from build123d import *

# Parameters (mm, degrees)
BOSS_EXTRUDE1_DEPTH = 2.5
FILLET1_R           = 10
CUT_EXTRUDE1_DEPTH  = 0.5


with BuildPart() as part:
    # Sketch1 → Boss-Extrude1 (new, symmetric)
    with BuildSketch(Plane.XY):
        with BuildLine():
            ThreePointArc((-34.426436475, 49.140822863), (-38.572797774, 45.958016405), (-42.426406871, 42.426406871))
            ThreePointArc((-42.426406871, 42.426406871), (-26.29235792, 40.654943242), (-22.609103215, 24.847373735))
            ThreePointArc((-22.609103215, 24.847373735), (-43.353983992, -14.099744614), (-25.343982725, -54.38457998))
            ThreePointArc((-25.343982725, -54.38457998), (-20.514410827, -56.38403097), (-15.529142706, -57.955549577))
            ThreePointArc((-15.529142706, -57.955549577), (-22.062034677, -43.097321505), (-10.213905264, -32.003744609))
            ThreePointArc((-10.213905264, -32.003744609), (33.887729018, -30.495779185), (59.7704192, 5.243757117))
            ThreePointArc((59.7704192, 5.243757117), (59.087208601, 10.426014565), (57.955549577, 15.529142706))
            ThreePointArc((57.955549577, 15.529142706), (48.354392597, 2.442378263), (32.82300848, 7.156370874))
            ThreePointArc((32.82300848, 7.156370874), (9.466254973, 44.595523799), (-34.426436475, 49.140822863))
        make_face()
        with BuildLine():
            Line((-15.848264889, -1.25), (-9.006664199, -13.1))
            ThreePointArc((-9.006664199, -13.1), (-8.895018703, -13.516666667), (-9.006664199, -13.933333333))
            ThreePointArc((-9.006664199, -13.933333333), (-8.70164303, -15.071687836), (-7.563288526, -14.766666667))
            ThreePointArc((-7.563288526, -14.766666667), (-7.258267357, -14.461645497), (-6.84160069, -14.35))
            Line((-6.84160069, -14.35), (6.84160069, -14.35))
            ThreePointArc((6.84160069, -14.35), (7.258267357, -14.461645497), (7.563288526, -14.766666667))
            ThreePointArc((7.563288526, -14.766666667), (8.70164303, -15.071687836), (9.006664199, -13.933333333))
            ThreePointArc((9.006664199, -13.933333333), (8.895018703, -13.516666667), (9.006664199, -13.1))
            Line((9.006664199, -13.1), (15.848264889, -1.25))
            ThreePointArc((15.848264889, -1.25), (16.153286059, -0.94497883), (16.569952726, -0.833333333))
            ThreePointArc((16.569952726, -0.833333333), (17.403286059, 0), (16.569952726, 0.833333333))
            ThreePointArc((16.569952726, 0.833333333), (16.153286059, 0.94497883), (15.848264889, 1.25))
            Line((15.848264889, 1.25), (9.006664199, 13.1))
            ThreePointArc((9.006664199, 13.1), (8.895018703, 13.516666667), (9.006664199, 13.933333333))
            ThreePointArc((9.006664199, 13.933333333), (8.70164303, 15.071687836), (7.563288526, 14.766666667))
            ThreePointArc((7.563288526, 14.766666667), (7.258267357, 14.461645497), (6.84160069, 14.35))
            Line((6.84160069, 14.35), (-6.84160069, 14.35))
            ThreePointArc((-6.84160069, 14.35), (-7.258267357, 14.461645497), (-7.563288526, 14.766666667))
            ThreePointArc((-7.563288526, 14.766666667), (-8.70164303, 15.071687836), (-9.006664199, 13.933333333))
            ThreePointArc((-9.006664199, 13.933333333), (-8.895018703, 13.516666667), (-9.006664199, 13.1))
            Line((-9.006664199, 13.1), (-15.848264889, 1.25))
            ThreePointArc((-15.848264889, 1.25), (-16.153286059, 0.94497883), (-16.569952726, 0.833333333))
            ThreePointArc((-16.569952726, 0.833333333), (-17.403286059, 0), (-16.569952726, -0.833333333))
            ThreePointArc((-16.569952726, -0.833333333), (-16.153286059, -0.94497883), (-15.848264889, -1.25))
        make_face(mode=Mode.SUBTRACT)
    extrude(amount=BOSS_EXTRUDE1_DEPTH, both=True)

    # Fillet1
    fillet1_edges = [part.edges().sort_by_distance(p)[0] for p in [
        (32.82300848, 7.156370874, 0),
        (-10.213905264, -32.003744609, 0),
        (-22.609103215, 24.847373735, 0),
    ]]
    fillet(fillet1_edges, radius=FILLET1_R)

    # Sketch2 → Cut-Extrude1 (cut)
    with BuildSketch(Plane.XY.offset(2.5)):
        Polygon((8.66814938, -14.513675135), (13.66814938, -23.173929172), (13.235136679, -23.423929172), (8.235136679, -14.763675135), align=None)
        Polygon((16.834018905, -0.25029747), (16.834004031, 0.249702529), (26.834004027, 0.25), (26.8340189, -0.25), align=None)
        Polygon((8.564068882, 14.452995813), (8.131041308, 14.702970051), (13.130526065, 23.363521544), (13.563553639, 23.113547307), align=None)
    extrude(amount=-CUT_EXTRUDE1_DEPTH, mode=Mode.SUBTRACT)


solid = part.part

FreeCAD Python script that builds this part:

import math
import FreeCAD as App
import Part
import Sketcher

V = App.Vector
Q = App.Units.Quantity


def edges_at(feature, points):
    """Names of the edges that pass closest to the given points."""
    edges = feature.Shape.Edges
    near = lambda p: min(range(len(edges)), key=lambda i: edges[i].distToShape(Part.Vertex(*p))[0])
    return sorted({f"Edge{near(p) + 1}" for p in points})


def add_polygon(sketch, points):
    """Adds a closed chain of lines whose ends are joined by coincident constraints."""
    first, n = sketch.GeometryCount, len(points)
    for a, b in zip(points, points[1:] + points[:1]):
        sketch.addGeometry(Part.LineSegment(App.Vector(*a, 0), App.Vector(*b, 0)), False)
    for i in range(n):
        sketch.addConstraint(Sketcher.Constraint("Coincident", first + i, 2, first + (i + 1) % n, 1))

doc = App.newDocument("Part")
body = doc.addObject("PartDesign::Body", "Body")

sketch1 = body.newObject("Sketcher::SketchObject", "Sketch")
sketch1.AttachmentSupport = (doc.getObject("XY_Plane"), [""])
sketch1.MapMode = "FlatFace"
sketch1.addGeometry(Part.ArcOfCircle(Part.Circle(V(0, 0, 0), V(0, 0, 1), 60), math.radians(125.01), math.radians(135)), False)
sketch1.addGeometry(Part.ArcOfCircle(Part.Circle(V(-35.6, 30.2, 0), V(0, 0, 1), 14), math.radians(-22), math.radians(119)), False)
sketch1.addGeometry(Part.ArcOfCircle(Part.Circle(V(6.8, -15.8, 0), V(0, 0, 1), 50.2), math.radians(126), math.radians(230)), False)
sketch1.addGeometry(Part.ArcOfCircle(Part.Circle(V(0, 0, 0), V(0, 0, 1), 60), math.radians(-114.99), math.radians(-105)), False)
sketch1.addGeometry(Part.ArcOfCircle(Part.Circle(V(-8.3, -45.9, 0), V(0, 0, 1), 14), math.radians(98), math.radians(239)), False)
sketch1.addGeometry(Part.ArcOfCircle(Part.Circle(V(10.3, 13.8, 0), V(0, 0, 1), 50.2), math.radians(-114), math.radians(-10)), False)
sketch1.addGeometry(Part.ArcOfCircle(Part.Circle(V(0, 0, 0), V(0, 0, 1), 60), math.radians(5.01), math.radians(15)), False)
sketch1.addGeometry(Part.ArcOfCircle(Part.Circle(V(43.9, 15.8, 0), V(0, 0, 1), 14), math.radians(-142), math.radians(-1)), False)
sketch1.addGeometry(Part.ArcOfCircle(Part.Circle(V(-17.1, 2, 0), V(0, 0, 1), 50.2), math.radians(6), math.radians(110)), False)
sketch1.addGeometry(Part.LineSegment(V(-9, -13.1, 0), V(-15.8, -1.2, 0)), False)
sketch1.addGeometry(Part.ArcOfCircle(Part.Circle(V(-16.6, -1.7, 0), V(0, 0, 1), 0.8), math.radians(30), math.radians(90)), False)
sketch1.addGeometry(Part.ArcOfCircle(Part.Circle(V(-16.6, 0, 0), V(0, 0, 1), 0.8), math.radians(90), math.radians(270)), False)
sketch1.addGeometry(Part.ArcOfCircle(Part.Circle(V(-16.6, 1.7, 0), V(0, 0, 1), 0.8), math.radians(-90), math.radians(-30)), False)
sketch1.addGeometry(Part.LineSegment(V(-15.8, 1.2, 0), V(-9, 13.1, 0)), False)
sketch1.addGeometry(Part.ArcOfCircle(Part.Circle(V(-9.7, 13.5, 0), V(0, 0, 1), 0.8), math.radians(-30), math.radians(30)), False)
sketch1.addGeometry(Part.ArcOfCircle(Part.Circle(V(-8.3, 14.3, 0), V(0, 0, 1), 0.8), math.radians(30), math.radians(210)), False)
sketch1.addGeometry(Part.ArcOfCircle(Part.Circle(V(-6.8, 15.2, 0), V(0, 0, 1), 0.8), math.radians(-150), math.radians(-90)), False)
sketch1.addGeometry(Part.LineSegment(V(-6.8, 14.3, 0), V(6.8, 14.3, 0)), False)
sketch1.addGeometry(Part.ArcOfCircle(Part.Circle(V(6.8, 15.2, 0), V(0, 0, 1), 0.8), math.radians(-90), math.radians(-30)), False)
sketch1.addGeometry(Part.ArcOfCircle(Part.Circle(V(8.3, 14.3, 0), V(0, 0, 1), 0.8), math.radians(-30), math.radians(150)), False)
sketch1.addGeometry(Part.ArcOfCircle(Part.Circle(V(9.7, 13.5, 0), V(0, 0, 1), 0.8), math.radians(150), math.radians(210)), False)
sketch1.addGeometry(Part.LineSegment(V(9, 13.1, 0), V(15.8, 1.2, 0)), False)
sketch1.addGeometry(Part.ArcOfCircle(Part.Circle(V(16.6, 1.7, 0), V(0, 0, 1), 0.8), math.radians(-150), math.radians(-90)), False)
sketch1.addGeometry(Part.ArcOfCircle(Part.Circle(V(16.6, 0, 0), V(0, 0, 1), 0.8), math.radians(-90), math.radians(90)), False)
sketch1.addGeometry(Part.ArcOfCircle(Part.Circle(V(16.6, -1.7, 0), V(0, 0, 1), 0.8), math.radians(90), math.radians(150)), False)
sketch1.addGeometry(Part.LineSegment(V(15.8, -1.2, 0), V(9, -13.1, 0)), False)
sketch1.addGeometry(Part.ArcOfCircle(Part.Circle(V(9.7, -13.5, 0), V(0, 0, 1), 0.8), math.radians(150), math.radians(210)), False)
sketch1.addGeometry(Part.ArcOfCircle(Part.Circle(V(8.3, -14.3, 0), V(0, 0, 1), 0.8), math.radians(-150), math.radians(30)), False)
sketch1.addGeometry(Part.ArcOfCircle(Part.Circle(V(6.8, -15.2, 0), V(0, 0, 1), 0.8), math.radians(30), math.radians(90)), False)
sketch1.addGeometry(Part.LineSegment(V(6.8, -14.3, 0), V(-6.8, -14.3, 0)), False)
sketch1.addGeometry(Part.ArcOfCircle(Part.Circle(V(-6.8, -15.2, 0), V(0, 0, 1), 0.8), math.radians(90), math.radians(150)), False)
sketch1.addGeometry(Part.ArcOfCircle(Part.Circle(V(-8.3, -14.3, 0), V(0, 0, 1), 0.8), math.radians(150), math.radians(330)), False)
sketch1.addGeometry(Part.ArcOfCircle(Part.Circle(V(-9.7, -13.5, 0), V(0, 0, 1), 0.8), math.radians(-30), math.radians(30)), False)
sketch1.addConstraint(Sketcher.Constraint("Coincident", 0, 2, 1, 2))
sketch1.addConstraint(Sketcher.Constraint("Coincident", 1, 1, 2, 1))
sketch1.addConstraint(Sketcher.Constraint("Coincident", 2, 2, 3, 1))
sketch1.addConstraint(Sketcher.Constraint("Coincident", 3, 2, 4, 2))
sketch1.addConstraint(Sketcher.Constraint("Coincident", 4, 1, 5, 1))
sketch1.addConstraint(Sketcher.Constraint("Coincident", 5, 2, 6, 1))
sketch1.addConstraint(Sketcher.Constraint("Coincident", 6, 2, 7, 2))
sketch1.addConstraint(Sketcher.Constraint("Coincident", 7, 1, 8, 1))
sketch1.addConstraint(Sketcher.Constraint("Coincident", 8, 2, 0, 1))
sketch1.addConstraint(Sketcher.Constraint("Tangent", 9, 2, 10, 1))
sketch1.addConstraint(Sketcher.Constraint("Tangent", 10, 2, 11, 2))
sketch1.addConstraint(Sketcher.Constraint("Tangent", 11, 1, 12, 1))
sketch1.addConstraint(Sketcher.Constraint("Tangent", 12, 2, 13, 1))
sketch1.addConstraint(Sketcher.Constraint("Tangent", 13, 2, 14, 1))
sketch1.addConstraint(Sketcher.Constraint("Tangent", 14, 2, 15, 2))
sketch1.addConstraint(Sketcher.Constraint("Tangent", 15, 1, 16, 1))
sketch1.addConstraint(Sketcher.Constraint("Tangent", 16, 2, 17, 1))
sketch1.addConstraint(Sketcher.Constraint("Tangent", 17, 2, 18, 1))
sketch1.addConstraint(Sketcher.Constraint("Tangent", 18, 2, 19, 2))
sketch1.addConstraint(Sketcher.Constraint("Tangent", 19, 1, 20, 1))
sketch1.addConstraint(Sketcher.Constraint("Tangent", 20, 2, 21, 1))
sketch1.addConstraint(Sketcher.Constraint("Tangent", 21, 2, 22, 1))
sketch1.addConstraint(Sketcher.Constraint("Tangent", 22, 2, 23, 2))
sketch1.addConstraint(Sketcher.Constraint("Tangent", 23, 1, 24, 1))
sketch1.addConstraint(Sketcher.Constraint("Tangent", 24, 2, 25, 1))
sketch1.addConstraint(Sketcher.Constraint("Tangent", 25, 2, 26, 1))
sketch1.addConstraint(Sketcher.Constraint("Tangent", 26, 2, 27, 2))
sketch1.addConstraint(Sketcher.Constraint("Tangent", 27, 1, 28, 1))
sketch1.addConstraint(Sketcher.Constraint("Tangent", 28, 2, 29, 1))
sketch1.addConstraint(Sketcher.Constraint("Tangent", 29, 2, 30, 1))
sketch1.addConstraint(Sketcher.Constraint("Tangent", 30, 2, 31, 2))
sketch1.addConstraint(Sketcher.Constraint("Tangent", 31, 1, 32, 1))
sketch1.addConstraint(Sketcher.Constraint("Tangent", 32, 2, 9, 1))
sketch1.addConstraint(Sketcher.Constraint("Horizontal", 17))
sketch1.addConstraint(Sketcher.Constraint("Horizontal", 29))
sketch1.addConstraint(Sketcher.Constraint("Coincident", 0, 3, -1, 1))
sketch1.addConstraint(Sketcher.Constraint("Coincident", 3, 3, -1, 1))
sketch1.addConstraint(Sketcher.Constraint("Coincident", 6, 3, -1, 1))
sketch1.addConstraint(Sketcher.Constraint("Equal", 0, 3))
sketch1.addConstraint(Sketcher.Constraint("Equal", 1, 4))
sketch1.addConstraint(Sketcher.Constraint("Equal", 2, 5))
sketch1.addConstraint(Sketcher.Constraint("Equal", 3, 6))
sketch1.addConstraint(Sketcher.Constraint("Equal", 4, 7))
sketch1.addConstraint(Sketcher.Constraint("Equal", 5, 8))
sketch1.addConstraint(Sketcher.Constraint("Equal", 10, 11))
sketch1.addConstraint(Sketcher.Constraint("Equal", 11, 12))
sketch1.addConstraint(Sketcher.Constraint("Equal", 12, 14))
sketch1.addConstraint(Sketcher.Constraint("Equal", 14, 15))
sketch1.addConstraint(Sketcher.Constraint("Equal", 15, 16))
sketch1.addConstraint(Sketcher.Constraint("Equal", 16, 18))
sketch1.addConstraint(Sketcher.Constraint("Equal", 18, 19))
sketch1.addConstraint(Sketcher.Constraint("Equal", 19, 20))
sketch1.addConstraint(Sketcher.Constraint("Equal", 20, 22))
sketch1.addConstraint(Sketcher.Constraint("Equal", 22, 23))
sketch1.addConstraint(Sketcher.Constraint("Equal", 23, 24))
sketch1.addConstraint(Sketcher.Constraint("Equal", 24, 26))
sketch1.addConstraint(Sketcher.Constraint("Equal", 26, 27))
sketch1.addConstraint(Sketcher.Constraint("Equal", 27, 28))
sketch1.addConstraint(Sketcher.Constraint("Equal", 28, 30))
sketch1.addConstraint(Sketcher.Constraint("Equal", 30, 31))
sketch1.addConstraint(Sketcher.Constraint("Equal", 31, 32))
sketch1.addConstraint(Sketcher.Constraint("Symmetric", 10, 3, 22, 3, -1, 1))
sketch1.addConstraint(Sketcher.Constraint("Symmetric", 14, 3, 26, 3, -1, 1))
sketch1.addConstraint(Sketcher.Constraint("Symmetric", 18, 3, 30, 3, -1, 1))
sketch1.addConstraint(Sketcher.Constraint("Symmetric", 15, 3, 19, 3, -2))
sketch1.addConstraint(Sketcher.Constraint("Symmetric", 12, 3, 22, 3, -2))
sketch1.addConstraint(Sketcher.Constraint("Symmetric", 9, 2, 24, 2, -2))
sketch1.addConstraint(Sketcher.Constraint("Parallel", 9, 21))
sketch1.addConstraint(Sketcher.Constraint("Horizontal", 27, 3, 31, 3))
sketch1.addConstraint(Sketcher.Constraint("Horizontal", 19, 3, 16, 2))
sketch1.addConstraint(Sketcher.Constraint("Horizontal", 31, 3, 28, 2))
sketch1.addConstraint(Sketcher.Constraint("Vertical", 10, 3, 11, 3))
sketch1.addConstraint(Sketcher.Constraint("Vertical", 22, 3, 23, 3))
sketch1.addConstraint(Sketcher.Constraint("Vertical", 13, 2, 14, 2))
sketch1.addConstraint(Sketcher.Constraint("Radius", 0, 60.0))
sketch1.addConstraint(Sketcher.Constraint("Angle", 9, Q("120 deg")))
sketch1.addConstraint(Sketcher.Constraint("DistanceY", -1, 1, 13, 2, 13.1))
sketch1.addConstraint(Sketcher.Constraint("DistanceY", 10, 2, 12, 3, 2.5))
sketch1.addConstraint(Sketcher.Constraint("Radius", 1, 14.04101))
sketch1.addConstraint(Sketcher.Constraint("DistanceX", 17, 1, 17, 2, 13.683201))
sketch1.addConstraint(Sketcher.Constraint("DistanceY", -1, 1, 1, 3, 30.151001))
sketch1.addConstraint(Sketcher.Constraint("Radius", 2, 50.214812))
sketch1.addConstraint(Sketcher.Constraint("DistanceX", 2, 3, 5, 3, 3.4645))
sketch1.addConstraint(Sketcher.Constraint("DistanceY", 2, 3, 7, 3, 31.5956))
sketch1.addConstraint(Sketcher.Constraint("DistanceY", 20, 3, 5, 3, 0.3151))
sketch1.addConstraint(Sketcher.Constraint("DistanceX", 1, 3, -1, 1, 35.60993))
sketch1.addConstraint(Sketcher.Constraint("DistanceX", -1, 1, 2, 3, 6.830941))
sketch1.addConstraint(Sketcher.Constraint("DistanceX", 8, 3, -1, 1, 17.126382))
sketch1.addConstraint(Sketcher.Constraint("DistanceY", -1, 1, 8, 3, 2.00023))
sketch1.addConstraint(Sketcher.Constraint("DistanceY", 2, 2, -1, 1, 54.38458))
sketch1.addConstraint(Sketcher.Constraint("DistanceY", 3, 2, -1, 1, 57.95555))
sketch1.addConstraint(Sketcher.Constraint("DistanceX", -1, 1, 6, 2, 57.95555))
sketch1.addConstraint(Sketcher.Constraint("DistanceX", 4, 3, 2, 3, 15.137509))
pad1 = body.newObject("PartDesign::Pad", "Pad")
pad1.Profile = sketch1
pad1.Length = 5
pad1.Midplane = True
doc.recompute()

fillet = body.newObject("PartDesign::Fillet", "Fillet")
fillet.Base = (pad1, edges_at(pad1, [(32.823, 7.156, 0), (-10.214, -32.004, 0), (-22.609, 24.847, 0)]))
fillet.Radius = 10

sketch2 = body.newObject("Sketcher::SketchObject", "Sketch001")
sketch2.AttachmentSupport = (doc.getObject("XY_Plane"), [""])
sketch2.MapMode = "FlatFace"
sketch2.AttachmentOffset = App.Placement(V(0, 0, 2.5), App.Rotation())
add_polygon(sketch2, [(13.67, -23.17), (8.67, -14.51), (8.24, -14.76), (13.24, -23.42)])
add_polygon(sketch2, [(16.83, 0.25), (16.83, -0.25), (26.83, -0.25), (26.83, 0.25)])
add_polygon(sketch2, [(8.13, 14.7), (8.56, 14.45), (13.56, 23.11), (13.13, 23.36)])
sketch2.addConstraint(Sketcher.Constraint("Perpendicular", 0, 1))
sketch2.addConstraint(Sketcher.Constraint("Perpendicular", 1, 2))
sketch2.addConstraint(Sketcher.Constraint("Perpendicular", 2, 3))
sketch2.addConstraint(Sketcher.Constraint("Perpendicular", 4, 5))
sketch2.addConstraint(Sketcher.Constraint("Perpendicular", 5, 6))
sketch2.addConstraint(Sketcher.Constraint("Perpendicular", 6, 7))
sketch2.addConstraint(Sketcher.Constraint("Perpendicular", 8, 9))
sketch2.addConstraint(Sketcher.Constraint("Perpendicular", 9, 10))
sketch2.addConstraint(Sketcher.Constraint("Perpendicular", 10, 11))
sketch2.addConstraint(Sketcher.Constraint("Equal", 3, 4))
sketch2.addConstraint(Sketcher.Constraint("Equal", 2, 5))
sketch2.addConstraint(Sketcher.Constraint("Equal", 6, 8))
sketch2.addConstraint(Sketcher.Constraint("Equal", 7, 9))
sketch2.addConstraint(Sketcher.Constraint("Angle", 0, Q("120 deg")))
sketch2.addConstraint(Sketcher.Constraint("Distance", 0, 10.0))
sketch2.addConstraint(Sketcher.Constraint("Distance", 1, 0.5))
sketch2.addConstraint(Sketcher.Constraint("DistanceY", 5, 2, -1, 1, 0.25))
sketch2.addConstraint(Sketcher.Constraint("DistanceX", -1, 1, 0, 2, 8.668149))
sketch2.addConstraint(Sketcher.Constraint("DistanceY", 2, 2, -1, 1, 23.423929))
sketch2.addConstraint(Sketcher.Constraint("DistanceX", -1, 1, 4, 2, 16.834019))
sketch2.addConstraint(Sketcher.Constraint("DistanceX", -1, 1, 8, 2, 8.564069))
sketch2.addConstraint(Sketcher.Constraint("DistanceY", -1, 1, 10, 2, 23.363522))
sketch2.addConstraint(Sketcher.Constraint("DistanceX", -1, 1, 11, 2, 8.131041))
sketch2.addConstraint(Sketcher.Constraint("DistanceY", 3, 2, 4, 2, 22.923632))
pocket1 = body.newObject("PartDesign::Pocket", "Pocket")
pocket1.Profile = sketch2
pocket1.Length = 0.5

doc.recompute()
